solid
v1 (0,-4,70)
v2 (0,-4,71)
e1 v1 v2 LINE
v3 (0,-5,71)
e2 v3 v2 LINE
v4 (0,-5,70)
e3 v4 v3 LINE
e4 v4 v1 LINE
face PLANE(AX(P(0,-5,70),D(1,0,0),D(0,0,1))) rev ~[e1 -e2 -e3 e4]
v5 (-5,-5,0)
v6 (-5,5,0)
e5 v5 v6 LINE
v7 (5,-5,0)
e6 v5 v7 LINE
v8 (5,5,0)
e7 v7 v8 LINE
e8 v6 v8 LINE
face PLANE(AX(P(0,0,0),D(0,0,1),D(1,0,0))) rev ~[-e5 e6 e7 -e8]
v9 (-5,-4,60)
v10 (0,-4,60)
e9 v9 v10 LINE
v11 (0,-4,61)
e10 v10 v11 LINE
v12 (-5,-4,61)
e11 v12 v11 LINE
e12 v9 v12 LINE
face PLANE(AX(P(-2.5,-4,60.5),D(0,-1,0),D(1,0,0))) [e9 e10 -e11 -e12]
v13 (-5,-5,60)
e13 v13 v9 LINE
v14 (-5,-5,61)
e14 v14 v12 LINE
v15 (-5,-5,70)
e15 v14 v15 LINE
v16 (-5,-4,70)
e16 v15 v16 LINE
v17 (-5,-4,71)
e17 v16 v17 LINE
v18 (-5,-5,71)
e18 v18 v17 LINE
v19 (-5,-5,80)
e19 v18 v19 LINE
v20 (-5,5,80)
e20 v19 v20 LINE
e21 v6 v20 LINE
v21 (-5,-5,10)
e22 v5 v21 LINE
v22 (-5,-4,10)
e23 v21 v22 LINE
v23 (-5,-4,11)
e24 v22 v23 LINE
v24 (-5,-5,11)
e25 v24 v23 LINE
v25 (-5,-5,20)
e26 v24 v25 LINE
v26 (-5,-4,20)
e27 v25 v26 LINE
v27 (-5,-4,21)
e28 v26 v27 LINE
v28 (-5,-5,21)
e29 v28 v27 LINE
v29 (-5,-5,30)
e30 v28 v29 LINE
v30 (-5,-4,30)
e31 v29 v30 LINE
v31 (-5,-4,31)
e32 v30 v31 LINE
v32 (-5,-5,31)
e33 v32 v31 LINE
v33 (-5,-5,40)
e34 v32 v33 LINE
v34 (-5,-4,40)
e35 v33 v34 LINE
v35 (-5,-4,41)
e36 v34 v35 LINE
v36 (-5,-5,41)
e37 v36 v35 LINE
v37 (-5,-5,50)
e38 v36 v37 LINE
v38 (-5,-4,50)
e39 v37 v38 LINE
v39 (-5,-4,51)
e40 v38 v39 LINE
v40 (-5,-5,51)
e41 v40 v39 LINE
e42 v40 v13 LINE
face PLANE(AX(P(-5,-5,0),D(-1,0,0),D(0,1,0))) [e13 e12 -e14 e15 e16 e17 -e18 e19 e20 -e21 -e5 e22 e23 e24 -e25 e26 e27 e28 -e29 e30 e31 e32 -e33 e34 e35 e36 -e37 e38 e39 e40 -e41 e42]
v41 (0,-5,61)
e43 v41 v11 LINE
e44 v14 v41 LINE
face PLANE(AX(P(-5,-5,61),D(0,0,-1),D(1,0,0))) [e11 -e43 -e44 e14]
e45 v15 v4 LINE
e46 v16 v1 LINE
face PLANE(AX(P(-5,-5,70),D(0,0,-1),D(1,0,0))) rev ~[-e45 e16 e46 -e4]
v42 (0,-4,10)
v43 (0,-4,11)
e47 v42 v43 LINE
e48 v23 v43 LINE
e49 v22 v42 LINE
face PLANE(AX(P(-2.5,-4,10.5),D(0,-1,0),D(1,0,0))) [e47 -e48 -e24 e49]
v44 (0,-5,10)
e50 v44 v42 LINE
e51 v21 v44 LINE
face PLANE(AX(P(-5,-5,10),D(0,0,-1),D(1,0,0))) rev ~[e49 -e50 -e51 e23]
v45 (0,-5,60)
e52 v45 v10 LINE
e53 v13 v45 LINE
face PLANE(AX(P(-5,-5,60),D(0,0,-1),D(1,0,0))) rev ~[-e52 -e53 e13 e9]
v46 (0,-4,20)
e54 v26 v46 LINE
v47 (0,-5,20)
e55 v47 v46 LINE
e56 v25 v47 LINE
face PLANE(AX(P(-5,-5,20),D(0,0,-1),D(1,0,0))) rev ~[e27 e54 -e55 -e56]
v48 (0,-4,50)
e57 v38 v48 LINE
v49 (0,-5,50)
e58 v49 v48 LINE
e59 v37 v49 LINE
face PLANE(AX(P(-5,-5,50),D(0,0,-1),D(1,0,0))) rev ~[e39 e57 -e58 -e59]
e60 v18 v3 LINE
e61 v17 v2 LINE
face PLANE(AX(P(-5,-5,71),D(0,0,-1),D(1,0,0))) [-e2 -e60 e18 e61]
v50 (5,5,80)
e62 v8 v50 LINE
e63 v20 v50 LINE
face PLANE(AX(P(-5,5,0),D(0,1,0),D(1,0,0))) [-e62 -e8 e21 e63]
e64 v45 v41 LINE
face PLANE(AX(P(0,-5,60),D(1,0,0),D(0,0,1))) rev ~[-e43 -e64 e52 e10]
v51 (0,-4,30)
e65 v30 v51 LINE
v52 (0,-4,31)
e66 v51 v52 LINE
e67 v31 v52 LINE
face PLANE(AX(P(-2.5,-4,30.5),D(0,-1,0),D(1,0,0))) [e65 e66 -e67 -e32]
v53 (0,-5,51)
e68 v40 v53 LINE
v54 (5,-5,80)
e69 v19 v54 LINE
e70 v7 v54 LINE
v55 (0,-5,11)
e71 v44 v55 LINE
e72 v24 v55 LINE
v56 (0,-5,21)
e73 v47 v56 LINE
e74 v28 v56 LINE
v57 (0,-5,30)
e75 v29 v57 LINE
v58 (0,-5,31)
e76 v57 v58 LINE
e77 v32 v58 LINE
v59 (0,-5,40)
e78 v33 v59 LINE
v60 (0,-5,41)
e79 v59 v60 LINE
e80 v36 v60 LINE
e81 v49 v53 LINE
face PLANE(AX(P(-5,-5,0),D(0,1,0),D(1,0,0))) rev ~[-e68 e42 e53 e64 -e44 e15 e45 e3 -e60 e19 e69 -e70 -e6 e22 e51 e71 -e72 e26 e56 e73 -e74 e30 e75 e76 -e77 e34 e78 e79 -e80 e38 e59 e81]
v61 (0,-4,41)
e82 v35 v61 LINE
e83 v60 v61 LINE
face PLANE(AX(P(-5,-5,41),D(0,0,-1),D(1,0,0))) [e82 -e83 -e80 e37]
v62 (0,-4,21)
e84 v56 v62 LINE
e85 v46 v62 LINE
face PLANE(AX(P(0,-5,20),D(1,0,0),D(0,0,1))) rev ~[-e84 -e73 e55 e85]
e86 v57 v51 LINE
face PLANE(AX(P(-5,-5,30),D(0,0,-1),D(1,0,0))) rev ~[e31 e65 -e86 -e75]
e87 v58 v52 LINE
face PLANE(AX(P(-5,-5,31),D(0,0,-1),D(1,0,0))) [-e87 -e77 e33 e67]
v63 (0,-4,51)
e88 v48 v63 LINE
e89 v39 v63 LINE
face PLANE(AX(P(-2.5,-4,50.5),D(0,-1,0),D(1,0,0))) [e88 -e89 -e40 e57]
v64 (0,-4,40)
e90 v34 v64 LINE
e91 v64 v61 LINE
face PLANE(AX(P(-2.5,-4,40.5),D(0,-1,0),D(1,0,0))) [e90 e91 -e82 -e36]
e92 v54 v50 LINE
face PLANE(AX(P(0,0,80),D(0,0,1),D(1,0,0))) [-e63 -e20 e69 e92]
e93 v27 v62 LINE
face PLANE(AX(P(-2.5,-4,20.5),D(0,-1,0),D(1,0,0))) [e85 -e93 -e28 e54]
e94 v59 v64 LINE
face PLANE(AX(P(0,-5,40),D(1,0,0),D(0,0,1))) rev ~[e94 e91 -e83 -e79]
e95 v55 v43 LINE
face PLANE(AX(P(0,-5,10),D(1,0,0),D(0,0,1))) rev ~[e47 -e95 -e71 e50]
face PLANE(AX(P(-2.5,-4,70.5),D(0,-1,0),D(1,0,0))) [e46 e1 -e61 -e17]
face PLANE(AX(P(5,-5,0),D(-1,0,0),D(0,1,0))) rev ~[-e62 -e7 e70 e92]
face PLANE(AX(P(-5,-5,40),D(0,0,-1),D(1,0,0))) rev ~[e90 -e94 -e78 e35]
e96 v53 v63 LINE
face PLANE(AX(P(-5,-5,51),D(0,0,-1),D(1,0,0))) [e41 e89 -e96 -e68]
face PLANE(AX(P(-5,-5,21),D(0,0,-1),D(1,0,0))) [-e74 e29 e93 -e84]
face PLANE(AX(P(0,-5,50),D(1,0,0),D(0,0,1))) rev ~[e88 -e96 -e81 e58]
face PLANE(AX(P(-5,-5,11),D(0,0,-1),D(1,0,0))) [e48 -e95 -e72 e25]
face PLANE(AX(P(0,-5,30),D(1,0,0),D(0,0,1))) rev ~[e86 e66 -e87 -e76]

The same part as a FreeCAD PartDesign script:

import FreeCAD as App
import Part
import Sketcher
from FreeCAD import Vector


def add_polygon(sketch, points):
    """Adds a closed chain of lines whose ends are joined by coincident constraints."""
    first, n = sketch.GeometryCount, len(points)
    for a, b in zip(points, points[1:] + points[:1]):
        sketch.addGeometry(Part.LineSegment(App.Vector(*a, 0), App.Vector(*b, 0)), False)
    for i in range(n):
        sketch.addConstraint(Sketcher.Constraint("Coincident", first + i, 2, first + (i + 1) % n, 1))

doc = App.newDocument("Part")
body = doc.addObject("PartDesign::Body", "Body")

sketch1 = body.newObject("Sketcher::SketchObject", "Sketch")
sketch1.AttachmentSupport = (doc.getObject("XY_Plane"), [""])
sketch1.MapMode = "FlatFace"
add_polygon(sketch1, [(-5, 5), (-5, -5), (5, -5), (5, 5)])
sketch1.addConstraint(Sketcher.Constraint("Vertical", 0))
sketch1.addConstraint(Sketcher.Constraint("Horizontal", 1))
sketch1.addConstraint(Sketcher.Constraint("Vertical", 2))
sketch1.addConstraint(Sketcher.Constraint("Horizontal", 3))
sketch1.addConstraint(Sketcher.Constraint("Symmetric", 0, 2, 2, 2, -1, 1))
sketch1.addConstraint(Sketcher.Constraint("Equal", 3, 0))
sketch1.addConstraint(Sketcher.Constraint("DistanceX", 1, 1, 1, 2, 10.0))
pad1 = body.newObject("PartDesign::Pad", "Pad")
pad1.Profile = sketch1
pad1.Length = 80

sketch2 = body.newObject("Sketcher::SketchObject", "Sketch001")
sketch2.AttachmentSupport = (doc.getObject("XZ_Plane"), [""])
sketch2.MapMode = "FlatFace"
sketch2.AttachmentOffset = App.Placement(Vector(0, 0, 5), App.Rotation())
add_polygon(sketch2, [(-5, 71), (-5, 70), (0, 70), (0, 71)])
add_polygon(sketch2, [(-5, 61), (-5, 60), (0, 60), (0, 61)])
add_polygon(sketch2, [(-5, 51), (-5, 50), (0, 50), (0, 51)])
add_polygon(sketch2, [(-5, 41), (-5, 40), (0, 40), (0, 41)])
add_polygon(sketch2, [(-5, 31), (-5, 30), (0, 30), (0, 31)])
add_polygon(sketch2, [(-5, 21), (-5, 20), (0, 20), (0, 21)])
add_polygon(sketch2, [(-5, 11), (-5, 10), (0, 10), (0, 11)])
sketch2.addConstraint(Sketcher.Constraint("Vertical", 0))
sketch2.addConstraint(Sketcher.Constraint("Horizontal", 1))
sketch2.addConstraint(Sketcher.Constraint("Vertical", 2))
sketch2.addConstraint(Sketcher.Constraint("Horizontal", 3))
sketch2.addConstraint(Sketcher.Constraint("Vertical", 4))
sketch2.addConstraint(Sketcher.Constraint("Horizontal", 5))
sketch2.addConstraint(Sketcher.Constraint("Vertical", 6))
sketch2.addConstraint(Sketcher.Constraint("Horizontal", 7))
sketch2.addConstraint(Sketcher.Constraint("Vertical", 8))
sketch2.addConstraint(Sketcher.Constraint("Horizontal", 9))
sketch2.addConstraint(Sketcher.Constraint("Vertical", 10))
sketch2.addConstraint(Sketcher.Constraint("Horizontal", 11))
sketch2.addConstraint(Sketcher.Constraint("Vertical", 12))
sketch2.addConstraint(Sketcher.Constraint("Horizontal", 13))
sketch2.addConstraint(Sketcher.Constraint("Vertical", 14))
sketch2.addConstraint(Sketcher.Constraint("Horizontal", 15))
sketch2.addConstraint(Sketcher.Constraint("Vertical", 16))
sketch2.addConstraint(Sketcher.Constraint("Horizontal", 17))
sketch2.addConstraint(Sketcher.Constraint("Vertical", 18))
sketch2.addConstraint(Sketcher.Constraint("Horizontal", 19))
sketch2.addConstraint(Sketcher.Constraint("Vertical", 20))
sketch2.addConstraint(Sketcher.Constraint("Horizontal", 21))
sketch2.addConstraint(Sketcher.Constraint("Vertical", 22))
sketch2.addConstraint(Sketcher.Constraint("Horizontal", 23))
sketch2.addConstraint(Sketcher.Constraint("Vertical", 24))
sketch2.addConstraint(Sketcher.Constraint("Horizontal", 25))
sketch2.addConstraint(Sketcher.Constraint("Vertical", 26))
sketch2.addConstraint(Sketcher.Constraint("Horizontal", 27))
sketch2.addConstraint(Sketcher.Constraint("PointOnObject", 1, 2, -2))
sketch2.addConstraint(Sketcher.Constraint("PointOnObject", 5, 2, -2))
sketch2.addConstraint(Sketcher.Constraint("PointOnObject", 9, 2, -2))
sketch2.addConstraint(Sketcher.Constraint("PointOnObject", 13, 2, -2))
sketch2.addConstraint(Sketcher.Constraint("PointOnObject", 17, 2, -2))
sketch2.addConstraint(Sketcher.Constraint("PointOnObject", 21, 2, -2))
sketch2.addConstraint(Sketcher.Constraint("PointOnObject", 25, 2, -2))
sketch2.addConstraint(Sketcher.Constraint("Vertical", 3, 2, 4, 2))
sketch2.addConstraint(Sketcher.Constraint("Vertical", 7, 2, 8, 2))
sketch2.addConstraint(Sketcher.Constraint("Vertical", 11, 2, 12, 2))
sketch2.addConstraint(Sketcher.Constraint("Vertical", 15, 2, 16, 2))
sketch2.addConstraint(Sketcher.Constraint("Vertical", 19, 2, 20, 2))
sketch2.addConstraint(Sketcher.Constraint("Vertical", 23, 2, 24, 2))
sketch2.addConstraint(Sketcher.Constraint("Equal", 2, 4))
sketch2.addConstraint(Sketcher.Constraint("Equal", 6, 8))
sketch2.addConstraint(Sketcher.Constraint("Equal", 10, 12))
sketch2.addConstraint(Sketcher.Constraint("Equal", 14, 16))
sketch2.addConstraint(Sketcher.Constraint("Equal", 18, 20))
sketch2.addConstraint(Sketcher.Constraint("Equal", 22, 24))
sketch2.addConstraint(Sketcher.Constraint("DistanceX", 1, 1, 1, 2, 5.0))
sketch2.addConstraint(Sketcher.Constraint("DistanceY", 0, 2, 0, 1, 1.0))
sketch2.addConstraint(Sketcher.Constraint("DistanceY", -1, 1, 0, 2, 70.0))
sketch2.addConstraint(Sketcher.Constraint("DistanceY", -1, 1, 4, 2, 60.0))
sketch2.addConstraint(Sketcher.Constraint("DistanceY", -1, 1, 8, 2, 50.0))
sketch2.addConstraint(Sketcher.Constraint("DistanceY", -1, 1, 12, 2, 40.0))
sketch2.addConstraint(Sketcher.Constraint("DistanceY", -1, 1, 16, 2, 30.0))
sketch2.addConstraint(Sketcher.Constraint("DistanceY", -1, 1, 20, 2, 20.0))
sketch2.addConstraint(Sketcher.Constraint("DistanceY", -1, 1, 24, 2, 10.0))
pocket1 = body.newObject("PartDesign::Pocket", "Pocket")
pocket1.Profile = sketch2
pocket1.Length = 1

doc.recompute()
